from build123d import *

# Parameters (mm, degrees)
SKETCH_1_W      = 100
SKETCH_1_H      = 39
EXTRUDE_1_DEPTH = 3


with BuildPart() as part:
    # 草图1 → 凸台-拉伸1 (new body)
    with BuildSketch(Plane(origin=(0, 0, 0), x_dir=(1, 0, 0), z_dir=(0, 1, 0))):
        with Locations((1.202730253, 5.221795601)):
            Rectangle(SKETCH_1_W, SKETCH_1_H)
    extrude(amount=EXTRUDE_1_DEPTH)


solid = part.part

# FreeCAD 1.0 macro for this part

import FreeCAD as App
import Part
import Sketcher


def add_polygon(sketch, points):
    """Adds a closed chain of lines whose ends are joined by coincident constraints."""
    first, n = sketch.GeometryCount, len(points)
    for a, b in zip(points, points[1:] + points[:1]):
        sketch.addGeometry(Part.LineSegment(App.Vector(*a, 0), App.Vector(*b, 0)), False)
    for i in range(n):
        sketch.addConstraint(Sketcher.Constraint("Coincident", first + i, 2, first + (i + 1) % n, 1))

doc = App.newDocument("Part")
body = doc.addObject("PartDesign::Body", "Body")

# Sketch on XZ plane
sketch1 = doc.addObject("Sketcher::SketchObject", "Sketch")
body.addObject(sketch1)
sketch1.AttachmentSupport = (doc.XZ_Plane, [""])
sketch1.MapMode = "FlatFace"
add_polygon(sketch1, [(-49, -25), (-49, 14), (51, 14), (51, -25)])  # lines 0-3
sketch1.addConstraint(Sketcher.Constraint("Vertical", 0))
sketch1.addConstraint(Sketcher.Constraint("Horizontal", 1))
sketch1.addConstraint(Sketcher.Constraint("Vertical", 2))
sketch1.addConstraint(Sketcher.Constraint("Horizontal", 3))
sketch1.addConstraint(Sketcher.Constraint("DistanceX", 1, 1, 1, 2, 100.0))
sketch1.addConstraint(Sketcher.Constraint("DistanceY", 0, 1, 0, 2, 39.0))
sketch1.addConstraint(Sketcher.Constraint("DistanceX", 0, 2, -1, 1, 48.79727))
sketch1.addConstraint(Sketcher.Constraint("DistanceY", -1, 1, 0, 2, 14.278204))
pad1 = doc.addObject("PartDesign::Pad", "Pad")
body.addObject(pad1)
pad1.Profile = sketch1
pad1.Length = 3
pad1.Reversed = True

doc.recompute()
